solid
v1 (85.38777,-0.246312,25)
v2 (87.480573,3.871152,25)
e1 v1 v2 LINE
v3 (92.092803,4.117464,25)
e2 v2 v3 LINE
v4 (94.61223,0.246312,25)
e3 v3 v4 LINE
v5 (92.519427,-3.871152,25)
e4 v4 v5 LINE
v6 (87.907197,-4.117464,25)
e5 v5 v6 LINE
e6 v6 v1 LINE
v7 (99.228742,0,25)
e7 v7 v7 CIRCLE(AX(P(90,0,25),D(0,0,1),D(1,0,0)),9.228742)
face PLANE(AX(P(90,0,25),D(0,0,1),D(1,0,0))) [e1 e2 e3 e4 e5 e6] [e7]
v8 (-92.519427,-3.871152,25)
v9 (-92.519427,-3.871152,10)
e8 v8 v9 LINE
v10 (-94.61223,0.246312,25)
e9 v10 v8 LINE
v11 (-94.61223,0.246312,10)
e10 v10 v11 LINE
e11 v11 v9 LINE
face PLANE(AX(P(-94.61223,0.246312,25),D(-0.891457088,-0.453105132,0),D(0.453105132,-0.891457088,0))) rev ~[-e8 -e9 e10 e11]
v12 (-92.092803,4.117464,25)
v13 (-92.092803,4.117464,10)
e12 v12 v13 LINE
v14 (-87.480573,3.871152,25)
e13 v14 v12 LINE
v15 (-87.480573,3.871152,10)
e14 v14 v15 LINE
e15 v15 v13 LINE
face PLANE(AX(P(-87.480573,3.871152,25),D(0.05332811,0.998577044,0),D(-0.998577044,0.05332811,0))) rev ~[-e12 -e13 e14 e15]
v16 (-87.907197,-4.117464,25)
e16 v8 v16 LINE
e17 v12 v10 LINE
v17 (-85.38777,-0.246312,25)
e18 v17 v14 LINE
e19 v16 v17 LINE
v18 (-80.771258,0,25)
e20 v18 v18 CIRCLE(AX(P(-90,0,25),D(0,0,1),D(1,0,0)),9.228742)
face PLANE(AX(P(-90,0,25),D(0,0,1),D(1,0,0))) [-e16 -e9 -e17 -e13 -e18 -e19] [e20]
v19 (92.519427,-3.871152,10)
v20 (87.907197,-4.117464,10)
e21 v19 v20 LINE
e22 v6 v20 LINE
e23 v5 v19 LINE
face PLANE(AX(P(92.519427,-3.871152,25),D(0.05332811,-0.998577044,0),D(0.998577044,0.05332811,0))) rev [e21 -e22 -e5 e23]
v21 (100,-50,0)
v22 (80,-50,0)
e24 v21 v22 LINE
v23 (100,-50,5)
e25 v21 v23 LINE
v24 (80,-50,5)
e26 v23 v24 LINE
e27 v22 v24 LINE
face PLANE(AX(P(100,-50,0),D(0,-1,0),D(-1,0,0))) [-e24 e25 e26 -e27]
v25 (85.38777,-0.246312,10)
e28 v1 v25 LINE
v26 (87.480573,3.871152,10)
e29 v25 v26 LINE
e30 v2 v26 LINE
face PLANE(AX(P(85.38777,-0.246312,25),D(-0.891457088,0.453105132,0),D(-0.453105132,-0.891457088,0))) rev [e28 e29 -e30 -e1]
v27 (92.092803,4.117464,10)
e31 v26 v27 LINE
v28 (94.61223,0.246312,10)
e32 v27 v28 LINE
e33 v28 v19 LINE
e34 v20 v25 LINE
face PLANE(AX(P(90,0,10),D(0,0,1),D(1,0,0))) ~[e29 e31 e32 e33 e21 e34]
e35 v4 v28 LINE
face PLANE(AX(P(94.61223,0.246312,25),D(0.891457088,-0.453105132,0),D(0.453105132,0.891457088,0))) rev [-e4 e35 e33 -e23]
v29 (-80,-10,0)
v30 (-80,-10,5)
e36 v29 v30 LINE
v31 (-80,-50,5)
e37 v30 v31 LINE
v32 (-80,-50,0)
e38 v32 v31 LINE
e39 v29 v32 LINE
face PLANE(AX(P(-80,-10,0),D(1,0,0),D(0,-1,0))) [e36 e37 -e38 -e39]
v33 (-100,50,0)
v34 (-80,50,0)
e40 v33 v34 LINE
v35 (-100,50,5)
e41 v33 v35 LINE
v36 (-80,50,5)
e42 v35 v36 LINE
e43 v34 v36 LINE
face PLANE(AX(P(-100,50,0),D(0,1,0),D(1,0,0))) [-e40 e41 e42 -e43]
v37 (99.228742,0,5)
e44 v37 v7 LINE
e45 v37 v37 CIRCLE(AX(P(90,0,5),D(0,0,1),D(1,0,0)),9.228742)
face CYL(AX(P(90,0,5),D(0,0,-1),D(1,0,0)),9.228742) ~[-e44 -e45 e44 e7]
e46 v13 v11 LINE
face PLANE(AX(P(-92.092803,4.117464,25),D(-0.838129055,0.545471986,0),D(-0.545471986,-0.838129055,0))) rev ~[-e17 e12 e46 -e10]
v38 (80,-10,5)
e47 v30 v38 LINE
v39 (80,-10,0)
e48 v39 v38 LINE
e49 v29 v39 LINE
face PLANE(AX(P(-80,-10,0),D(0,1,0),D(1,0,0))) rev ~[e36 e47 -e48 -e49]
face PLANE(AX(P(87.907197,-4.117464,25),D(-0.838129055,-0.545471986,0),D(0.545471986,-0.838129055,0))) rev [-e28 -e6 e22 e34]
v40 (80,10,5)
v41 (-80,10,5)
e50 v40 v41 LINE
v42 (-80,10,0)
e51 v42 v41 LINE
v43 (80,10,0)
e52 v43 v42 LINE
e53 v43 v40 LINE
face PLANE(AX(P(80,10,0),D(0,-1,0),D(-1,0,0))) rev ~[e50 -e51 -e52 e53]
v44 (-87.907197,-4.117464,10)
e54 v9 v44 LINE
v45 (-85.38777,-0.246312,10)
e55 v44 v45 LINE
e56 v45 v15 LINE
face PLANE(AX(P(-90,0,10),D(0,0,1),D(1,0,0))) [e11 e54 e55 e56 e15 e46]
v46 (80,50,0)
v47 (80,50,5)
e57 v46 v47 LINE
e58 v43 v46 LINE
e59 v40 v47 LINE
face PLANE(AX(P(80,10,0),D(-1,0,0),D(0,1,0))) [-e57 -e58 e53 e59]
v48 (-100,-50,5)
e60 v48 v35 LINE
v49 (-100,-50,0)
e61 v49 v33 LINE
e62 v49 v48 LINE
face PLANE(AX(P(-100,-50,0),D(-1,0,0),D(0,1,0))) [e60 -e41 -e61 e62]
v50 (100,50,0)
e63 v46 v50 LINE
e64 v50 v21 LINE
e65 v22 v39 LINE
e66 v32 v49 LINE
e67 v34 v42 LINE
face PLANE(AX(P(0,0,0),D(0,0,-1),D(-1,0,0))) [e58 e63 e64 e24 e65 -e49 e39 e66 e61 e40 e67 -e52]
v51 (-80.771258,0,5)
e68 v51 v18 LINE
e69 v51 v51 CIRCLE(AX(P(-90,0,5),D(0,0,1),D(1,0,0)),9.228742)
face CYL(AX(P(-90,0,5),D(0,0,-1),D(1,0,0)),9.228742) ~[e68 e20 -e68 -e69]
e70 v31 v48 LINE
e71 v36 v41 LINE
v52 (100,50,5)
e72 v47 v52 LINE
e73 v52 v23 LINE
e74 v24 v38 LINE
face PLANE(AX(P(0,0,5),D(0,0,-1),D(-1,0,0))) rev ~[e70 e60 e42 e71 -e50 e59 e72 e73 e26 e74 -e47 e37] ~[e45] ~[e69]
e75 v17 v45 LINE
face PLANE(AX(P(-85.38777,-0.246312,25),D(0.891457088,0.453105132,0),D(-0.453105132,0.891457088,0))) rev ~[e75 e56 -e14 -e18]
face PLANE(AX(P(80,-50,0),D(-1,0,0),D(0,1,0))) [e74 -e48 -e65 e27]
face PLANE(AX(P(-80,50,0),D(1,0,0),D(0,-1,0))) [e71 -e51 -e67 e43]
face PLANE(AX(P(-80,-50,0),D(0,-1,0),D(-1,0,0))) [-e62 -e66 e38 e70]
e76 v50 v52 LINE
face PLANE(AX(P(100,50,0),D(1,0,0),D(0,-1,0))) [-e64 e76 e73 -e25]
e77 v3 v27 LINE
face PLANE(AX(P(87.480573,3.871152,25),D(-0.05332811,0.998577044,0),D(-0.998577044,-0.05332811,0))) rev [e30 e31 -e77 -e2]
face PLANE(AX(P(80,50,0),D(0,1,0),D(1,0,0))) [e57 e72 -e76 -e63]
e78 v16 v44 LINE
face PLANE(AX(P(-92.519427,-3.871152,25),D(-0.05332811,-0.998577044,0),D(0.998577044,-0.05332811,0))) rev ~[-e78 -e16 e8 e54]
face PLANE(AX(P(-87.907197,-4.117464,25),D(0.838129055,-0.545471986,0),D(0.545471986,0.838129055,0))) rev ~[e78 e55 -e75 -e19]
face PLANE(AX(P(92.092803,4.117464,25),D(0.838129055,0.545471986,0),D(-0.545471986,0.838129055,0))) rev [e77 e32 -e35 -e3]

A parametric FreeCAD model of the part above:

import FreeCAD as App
import Part
import Sketcher

V = App.Vector
Q = App.Units.Quantity


def add_polygon(sketch, points):
    """Adds a closed chain of lines whose ends are joined by coincident constraints."""
    first, n = sketch.GeometryCount, len(points)
    for a, b in zip(points, points[1:] + points[:1]):
        sketch.addGeometry(Part.LineSegment(App.Vector(*a, 0), App.Vector(*b, 0)), False)
    for i in range(n):
        sketch.addConstraint(Sketcher.Constraint("Coincident", first + i, 2, first + (i + 1) % n, 1))

doc = App.newDocument("Part")
body = doc.addObject("PartDesign::Body", "Body")

# Sketch on XY plane
sketch1 = body.newObject("Sketcher::SketchObject", "Sketch")
sketch1.AttachmentSupport = (doc.getObject("XY_Plane"), [""])
sketch1.MapMode = "FlatFace"
add_polygon(sketch1, [(80, 10), (-80, 10), (-80, 50), (-100, 50), (-100, -50), (-80, -50), (-80, -10), (80, -10), (80, -50), (100, -50), (100, 50), (80, 50)])  # lines 0-11
sketch1.addConstraint(Sketcher.Constraint("Horizontal", 0))
sketch1.addConstraint(Sketcher.Constraint("Vertical", 1))
sketch1.addConstraint(Sketcher.Constraint("Horizontal", 2))
sketch1.addConstraint(Sketcher.Constraint("Vertical", 3))
sketch1.addConstraint(Sketcher.Constraint("Horizontal", 4))
sketch1.addConstraint(Sketcher.Constraint("Vertical", 5))
sketch1.addConstraint(Sketcher.Constraint("Horizontal", 6))
sketch1.addConstraint(Sketcher.Constraint("Vertical", 7))
sketch1.addConstraint(Sketcher.Constraint("Horizontal", 8))
sketch1.addConstraint(Sketcher.Constraint("Vertical", 9))
sketch1.addConstraint(Sketcher.Constraint("Horizontal", 10))
sketch1.addConstraint(Sketcher.Constraint("Vertical", 11))
sketch1.addConstraint(Sketcher.Constraint("Symmetric", 0, 2, 6, 2, -1, 1))
sketch1.addConstraint(Sketcher.Constraint("Symmetric", 2, 2, 8, 2, -1, 1))
sketch1.addConstraint(Sketcher.Constraint("Symmetric", 4, 2, 10, 2, -1, 1))
sketch1.addConstraint(Sketcher.Constraint("Symmetric", 4, 2, 7, 2, -2))
sketch1.addConstraint(Sketcher.Constraint("DistanceX", 0, 2, 0, 1, Q("160 mm")))
sketch1.addConstraint(Sketcher.Constraint("DistanceX", 2, 2, 2, 1, Q("20 mm")))
sketch1.addConstraint(Sketcher.Constraint("DistanceY", 1, 1, 1, 2, Q("40 mm")))
sketch1.addConstraint(Sketcher.Constraint("DistanceY", 3, 2, 3, 1, Q("100 mm")))
pad1 = body.newObject("PartDesign::Pad", "Pad")
pad1.Profile = sketch1
pad1.Length = 5

# Sketch on XY plane
sketch2 = body.newObject("Sketcher::SketchObject", "Sketch001")
sketch2.AttachmentSupport = (doc.getObject("XY_Plane"), [""])
sketch2.MapMode = "FlatFace"
sketch2.AttachmentOffset = App.Placement(V(0, 0, 5), App.Rotation())
sketch2.addGeometry(Part.Circle(V(90, 0, 0), V(0, 0, 1), 9.228742), False)
sketch2.addGeometry(Part.Circle(V(-90, 0, 0), V(0, 0, 1), 9.228742), False)
sketch2.addConstraint(Sketcher.Constraint("Equal", 0, 1))
sketch2.addConstraint(Sketcher.Constraint("Symmetric", 0, 3, 1, 3, -1, 1))
sketch2.addConstraint(Sketcher.Constraint("PointOnObject", 0, 3, -1))
sketch2.addConstraint(Sketcher.Constraint("DistanceX", -1, 1, 0, 3, Q("90 mm")))
sketch2.addConstraint(Sketcher.Constraint("Diameter", 0, Q("18.457484 mm")))
pad2 = body.newObject("PartDesign::Pad", "Pad001")
pad2.Profile = sketch2
pad2.Length = 20

# Sketch on XY plane
sketch3 = body.newObject("Sketcher::SketchObject", "Sketch002")
sketch3.AttachmentSupport = (doc.getObject("XY_Plane"), [""])
sketch3.MapMode = "FlatFace"
sketch3.AttachmentOffset = App.Placement(V(0, 0, 25), App.Rotation())
add_polygon(sketch3, [(-87.480573, 3.871152), (-92.092803, 4.117464), (-94.61223, 0.246312), (-92.519427, -3.871152), (-87.907197, -4.117464), (-85.38777, -0.246312)])  # lines 0-5
sketch3.addConstraint(Sketcher.Constraint("Parallel", 0, 3))
sketch3.addConstraint(Sketcher.Constraint("Parallel", 1, 4))
sketch3.addConstraint(Sketcher.Constraint("Parallel", 2, 5))
sketch3.addConstraint(Sketcher.Constraint("Equal", 0, 1))
sketch3.addConstraint(Sketcher.Constraint("Equal", 1, 2))
sketch3.addConstraint(Sketcher.Constraint("Equal", 2, 3))
sketch3.addConstraint(Sketcher.Constraint("Distance", 1, Q("4.618802 mm")))
sketch3.addConstraint(Sketcher.Constraint("DistanceX", 1, 2, -1, 1, Q("94.61223 mm")))
sketch3.addConstraint(Sketcher.Constraint("DistanceY", 2, 2, -1, 1, Q("3.871152 mm")))
sketch3.addConstraint(Sketcher.Constraint("DistanceX", 4, 2, -1, 1, Q("85.38777 mm")))
sketch3.addConstraint(Sketcher.Constraint("DistanceY", -1, 1, 5, 2, Q("3.871152 mm")))
sketch3.addConstraint(Sketcher.Constraint("DistanceY", 1, 2, 0, 2, Q("3.871152 mm")))
pocket1 = body.newObject("PartDesign::Pocket", "Pocket")
pocket1.Profile = sketch3
pocket1.Length = 15
doc.recompute()

mirrored = body.newObject("PartDesign::Mirrored", "Mirrored")
mirrored.Originals = [pocket1]
mirrored.MirrorPlane = (doc.getObject("YZ_Plane"), [""])
body.Tip = mirrored

doc.recompute()
